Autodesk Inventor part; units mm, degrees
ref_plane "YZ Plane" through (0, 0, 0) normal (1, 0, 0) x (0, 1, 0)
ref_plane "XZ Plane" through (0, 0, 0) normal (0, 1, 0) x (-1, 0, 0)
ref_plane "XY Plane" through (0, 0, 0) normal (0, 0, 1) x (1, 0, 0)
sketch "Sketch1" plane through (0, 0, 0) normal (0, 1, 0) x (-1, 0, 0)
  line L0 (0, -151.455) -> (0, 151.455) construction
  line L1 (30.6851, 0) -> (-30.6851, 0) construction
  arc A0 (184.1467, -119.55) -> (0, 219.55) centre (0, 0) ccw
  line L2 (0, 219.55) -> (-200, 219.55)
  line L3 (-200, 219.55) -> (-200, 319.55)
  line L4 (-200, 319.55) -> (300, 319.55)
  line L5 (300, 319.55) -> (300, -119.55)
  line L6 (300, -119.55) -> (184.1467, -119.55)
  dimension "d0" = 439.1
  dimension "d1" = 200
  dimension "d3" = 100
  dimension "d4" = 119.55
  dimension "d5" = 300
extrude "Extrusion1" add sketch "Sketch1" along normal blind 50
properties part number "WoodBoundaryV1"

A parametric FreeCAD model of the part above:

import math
import FreeCAD as App
import Part
import Sketcher
Q = App.Units.Quantity

doc = App.newDocument("Part")
body = doc.addObject("PartDesign::Body", "Body")

# Sketch on XZ plane
sketch1 = doc.addObject("Sketcher::SketchObject", "Sketch")
body.addObject(sketch1)
sketch1.AttachmentSupport = (doc.XZ_Plane, [""])
sketch1.MapMode = "FlatFace"
sketch1.addGeometry([
    Part.ArcOfCircle(Part.Circle(App.Vector(0, 0, 0), App.Vector(0, 0, 1), 220), math.radians(90), math.radians(213)),  # 0
    Part.LineSegment(App.Vector(-184, -120, 0), App.Vector(-300, -120, 0)),  # 1
    Part.LineSegment(App.Vector(-300, -120, 0), App.Vector(-300, 320, 0)),  # 2
    Part.LineSegment(App.Vector(-300, 320, 0), App.Vector(200, 320, 0)),  # 3
    Part.LineSegment(App.Vector(200, 320, 0), App.Vector(200, 220, 0)),  # 4
    Part.LineSegment(App.Vector(200, 220, 0), App.Vector(0, 220, 0)),  # 5
], False)
sketch1.addConstraint([
    Sketcher.Constraint("Coincident", 0, 2, 1, 1),
    Sketcher.Constraint("Coincident", 1, 2, 2, 1),
    Sketcher.Constraint("Coincident", 2, 2, 3, 1),
    Sketcher.Constraint("Coincident", 3, 2, 4, 1),
    Sketcher.Constraint("Coincident", 4, 2, 5, 1),
    Sketcher.Constraint("Tangent", 5, 2, 0, 1),
    Sketcher.Constraint("Horizontal", 1),
    Sketcher.Constraint("Vertical", 2),
    Sketcher.Constraint("Horizontal", 3),
    Sketcher.Constraint("Vertical", 4),
    Sketcher.Constraint("Horizontal", 5),
    Sketcher.Constraint("Coincident", 0, 3, -1, 1),
    Sketcher.Constraint("DistanceX", 5, 2, 5, 1, Q("200 mm")),
    Sketcher.Constraint("DistanceY", 4, 2, 4, 1, Q("100 mm")),
    Sketcher.Constraint("Radius", 0, Q("219.55 mm")),
    Sketcher.Constraint("DistanceY", 2, 1, 2, 2, Q("439.1 mm")),
    Sketcher.Constraint("DistanceX", 1, 2, -1, 1, Q("300 mm")),
])
pad1 = doc.addObject("PartDesign::Pad", "Pad")
body.addObject(pad1)
pad1.Profile = sketch1
pad1.Length = 50
pad1.Reversed = True

doc.recompute()
